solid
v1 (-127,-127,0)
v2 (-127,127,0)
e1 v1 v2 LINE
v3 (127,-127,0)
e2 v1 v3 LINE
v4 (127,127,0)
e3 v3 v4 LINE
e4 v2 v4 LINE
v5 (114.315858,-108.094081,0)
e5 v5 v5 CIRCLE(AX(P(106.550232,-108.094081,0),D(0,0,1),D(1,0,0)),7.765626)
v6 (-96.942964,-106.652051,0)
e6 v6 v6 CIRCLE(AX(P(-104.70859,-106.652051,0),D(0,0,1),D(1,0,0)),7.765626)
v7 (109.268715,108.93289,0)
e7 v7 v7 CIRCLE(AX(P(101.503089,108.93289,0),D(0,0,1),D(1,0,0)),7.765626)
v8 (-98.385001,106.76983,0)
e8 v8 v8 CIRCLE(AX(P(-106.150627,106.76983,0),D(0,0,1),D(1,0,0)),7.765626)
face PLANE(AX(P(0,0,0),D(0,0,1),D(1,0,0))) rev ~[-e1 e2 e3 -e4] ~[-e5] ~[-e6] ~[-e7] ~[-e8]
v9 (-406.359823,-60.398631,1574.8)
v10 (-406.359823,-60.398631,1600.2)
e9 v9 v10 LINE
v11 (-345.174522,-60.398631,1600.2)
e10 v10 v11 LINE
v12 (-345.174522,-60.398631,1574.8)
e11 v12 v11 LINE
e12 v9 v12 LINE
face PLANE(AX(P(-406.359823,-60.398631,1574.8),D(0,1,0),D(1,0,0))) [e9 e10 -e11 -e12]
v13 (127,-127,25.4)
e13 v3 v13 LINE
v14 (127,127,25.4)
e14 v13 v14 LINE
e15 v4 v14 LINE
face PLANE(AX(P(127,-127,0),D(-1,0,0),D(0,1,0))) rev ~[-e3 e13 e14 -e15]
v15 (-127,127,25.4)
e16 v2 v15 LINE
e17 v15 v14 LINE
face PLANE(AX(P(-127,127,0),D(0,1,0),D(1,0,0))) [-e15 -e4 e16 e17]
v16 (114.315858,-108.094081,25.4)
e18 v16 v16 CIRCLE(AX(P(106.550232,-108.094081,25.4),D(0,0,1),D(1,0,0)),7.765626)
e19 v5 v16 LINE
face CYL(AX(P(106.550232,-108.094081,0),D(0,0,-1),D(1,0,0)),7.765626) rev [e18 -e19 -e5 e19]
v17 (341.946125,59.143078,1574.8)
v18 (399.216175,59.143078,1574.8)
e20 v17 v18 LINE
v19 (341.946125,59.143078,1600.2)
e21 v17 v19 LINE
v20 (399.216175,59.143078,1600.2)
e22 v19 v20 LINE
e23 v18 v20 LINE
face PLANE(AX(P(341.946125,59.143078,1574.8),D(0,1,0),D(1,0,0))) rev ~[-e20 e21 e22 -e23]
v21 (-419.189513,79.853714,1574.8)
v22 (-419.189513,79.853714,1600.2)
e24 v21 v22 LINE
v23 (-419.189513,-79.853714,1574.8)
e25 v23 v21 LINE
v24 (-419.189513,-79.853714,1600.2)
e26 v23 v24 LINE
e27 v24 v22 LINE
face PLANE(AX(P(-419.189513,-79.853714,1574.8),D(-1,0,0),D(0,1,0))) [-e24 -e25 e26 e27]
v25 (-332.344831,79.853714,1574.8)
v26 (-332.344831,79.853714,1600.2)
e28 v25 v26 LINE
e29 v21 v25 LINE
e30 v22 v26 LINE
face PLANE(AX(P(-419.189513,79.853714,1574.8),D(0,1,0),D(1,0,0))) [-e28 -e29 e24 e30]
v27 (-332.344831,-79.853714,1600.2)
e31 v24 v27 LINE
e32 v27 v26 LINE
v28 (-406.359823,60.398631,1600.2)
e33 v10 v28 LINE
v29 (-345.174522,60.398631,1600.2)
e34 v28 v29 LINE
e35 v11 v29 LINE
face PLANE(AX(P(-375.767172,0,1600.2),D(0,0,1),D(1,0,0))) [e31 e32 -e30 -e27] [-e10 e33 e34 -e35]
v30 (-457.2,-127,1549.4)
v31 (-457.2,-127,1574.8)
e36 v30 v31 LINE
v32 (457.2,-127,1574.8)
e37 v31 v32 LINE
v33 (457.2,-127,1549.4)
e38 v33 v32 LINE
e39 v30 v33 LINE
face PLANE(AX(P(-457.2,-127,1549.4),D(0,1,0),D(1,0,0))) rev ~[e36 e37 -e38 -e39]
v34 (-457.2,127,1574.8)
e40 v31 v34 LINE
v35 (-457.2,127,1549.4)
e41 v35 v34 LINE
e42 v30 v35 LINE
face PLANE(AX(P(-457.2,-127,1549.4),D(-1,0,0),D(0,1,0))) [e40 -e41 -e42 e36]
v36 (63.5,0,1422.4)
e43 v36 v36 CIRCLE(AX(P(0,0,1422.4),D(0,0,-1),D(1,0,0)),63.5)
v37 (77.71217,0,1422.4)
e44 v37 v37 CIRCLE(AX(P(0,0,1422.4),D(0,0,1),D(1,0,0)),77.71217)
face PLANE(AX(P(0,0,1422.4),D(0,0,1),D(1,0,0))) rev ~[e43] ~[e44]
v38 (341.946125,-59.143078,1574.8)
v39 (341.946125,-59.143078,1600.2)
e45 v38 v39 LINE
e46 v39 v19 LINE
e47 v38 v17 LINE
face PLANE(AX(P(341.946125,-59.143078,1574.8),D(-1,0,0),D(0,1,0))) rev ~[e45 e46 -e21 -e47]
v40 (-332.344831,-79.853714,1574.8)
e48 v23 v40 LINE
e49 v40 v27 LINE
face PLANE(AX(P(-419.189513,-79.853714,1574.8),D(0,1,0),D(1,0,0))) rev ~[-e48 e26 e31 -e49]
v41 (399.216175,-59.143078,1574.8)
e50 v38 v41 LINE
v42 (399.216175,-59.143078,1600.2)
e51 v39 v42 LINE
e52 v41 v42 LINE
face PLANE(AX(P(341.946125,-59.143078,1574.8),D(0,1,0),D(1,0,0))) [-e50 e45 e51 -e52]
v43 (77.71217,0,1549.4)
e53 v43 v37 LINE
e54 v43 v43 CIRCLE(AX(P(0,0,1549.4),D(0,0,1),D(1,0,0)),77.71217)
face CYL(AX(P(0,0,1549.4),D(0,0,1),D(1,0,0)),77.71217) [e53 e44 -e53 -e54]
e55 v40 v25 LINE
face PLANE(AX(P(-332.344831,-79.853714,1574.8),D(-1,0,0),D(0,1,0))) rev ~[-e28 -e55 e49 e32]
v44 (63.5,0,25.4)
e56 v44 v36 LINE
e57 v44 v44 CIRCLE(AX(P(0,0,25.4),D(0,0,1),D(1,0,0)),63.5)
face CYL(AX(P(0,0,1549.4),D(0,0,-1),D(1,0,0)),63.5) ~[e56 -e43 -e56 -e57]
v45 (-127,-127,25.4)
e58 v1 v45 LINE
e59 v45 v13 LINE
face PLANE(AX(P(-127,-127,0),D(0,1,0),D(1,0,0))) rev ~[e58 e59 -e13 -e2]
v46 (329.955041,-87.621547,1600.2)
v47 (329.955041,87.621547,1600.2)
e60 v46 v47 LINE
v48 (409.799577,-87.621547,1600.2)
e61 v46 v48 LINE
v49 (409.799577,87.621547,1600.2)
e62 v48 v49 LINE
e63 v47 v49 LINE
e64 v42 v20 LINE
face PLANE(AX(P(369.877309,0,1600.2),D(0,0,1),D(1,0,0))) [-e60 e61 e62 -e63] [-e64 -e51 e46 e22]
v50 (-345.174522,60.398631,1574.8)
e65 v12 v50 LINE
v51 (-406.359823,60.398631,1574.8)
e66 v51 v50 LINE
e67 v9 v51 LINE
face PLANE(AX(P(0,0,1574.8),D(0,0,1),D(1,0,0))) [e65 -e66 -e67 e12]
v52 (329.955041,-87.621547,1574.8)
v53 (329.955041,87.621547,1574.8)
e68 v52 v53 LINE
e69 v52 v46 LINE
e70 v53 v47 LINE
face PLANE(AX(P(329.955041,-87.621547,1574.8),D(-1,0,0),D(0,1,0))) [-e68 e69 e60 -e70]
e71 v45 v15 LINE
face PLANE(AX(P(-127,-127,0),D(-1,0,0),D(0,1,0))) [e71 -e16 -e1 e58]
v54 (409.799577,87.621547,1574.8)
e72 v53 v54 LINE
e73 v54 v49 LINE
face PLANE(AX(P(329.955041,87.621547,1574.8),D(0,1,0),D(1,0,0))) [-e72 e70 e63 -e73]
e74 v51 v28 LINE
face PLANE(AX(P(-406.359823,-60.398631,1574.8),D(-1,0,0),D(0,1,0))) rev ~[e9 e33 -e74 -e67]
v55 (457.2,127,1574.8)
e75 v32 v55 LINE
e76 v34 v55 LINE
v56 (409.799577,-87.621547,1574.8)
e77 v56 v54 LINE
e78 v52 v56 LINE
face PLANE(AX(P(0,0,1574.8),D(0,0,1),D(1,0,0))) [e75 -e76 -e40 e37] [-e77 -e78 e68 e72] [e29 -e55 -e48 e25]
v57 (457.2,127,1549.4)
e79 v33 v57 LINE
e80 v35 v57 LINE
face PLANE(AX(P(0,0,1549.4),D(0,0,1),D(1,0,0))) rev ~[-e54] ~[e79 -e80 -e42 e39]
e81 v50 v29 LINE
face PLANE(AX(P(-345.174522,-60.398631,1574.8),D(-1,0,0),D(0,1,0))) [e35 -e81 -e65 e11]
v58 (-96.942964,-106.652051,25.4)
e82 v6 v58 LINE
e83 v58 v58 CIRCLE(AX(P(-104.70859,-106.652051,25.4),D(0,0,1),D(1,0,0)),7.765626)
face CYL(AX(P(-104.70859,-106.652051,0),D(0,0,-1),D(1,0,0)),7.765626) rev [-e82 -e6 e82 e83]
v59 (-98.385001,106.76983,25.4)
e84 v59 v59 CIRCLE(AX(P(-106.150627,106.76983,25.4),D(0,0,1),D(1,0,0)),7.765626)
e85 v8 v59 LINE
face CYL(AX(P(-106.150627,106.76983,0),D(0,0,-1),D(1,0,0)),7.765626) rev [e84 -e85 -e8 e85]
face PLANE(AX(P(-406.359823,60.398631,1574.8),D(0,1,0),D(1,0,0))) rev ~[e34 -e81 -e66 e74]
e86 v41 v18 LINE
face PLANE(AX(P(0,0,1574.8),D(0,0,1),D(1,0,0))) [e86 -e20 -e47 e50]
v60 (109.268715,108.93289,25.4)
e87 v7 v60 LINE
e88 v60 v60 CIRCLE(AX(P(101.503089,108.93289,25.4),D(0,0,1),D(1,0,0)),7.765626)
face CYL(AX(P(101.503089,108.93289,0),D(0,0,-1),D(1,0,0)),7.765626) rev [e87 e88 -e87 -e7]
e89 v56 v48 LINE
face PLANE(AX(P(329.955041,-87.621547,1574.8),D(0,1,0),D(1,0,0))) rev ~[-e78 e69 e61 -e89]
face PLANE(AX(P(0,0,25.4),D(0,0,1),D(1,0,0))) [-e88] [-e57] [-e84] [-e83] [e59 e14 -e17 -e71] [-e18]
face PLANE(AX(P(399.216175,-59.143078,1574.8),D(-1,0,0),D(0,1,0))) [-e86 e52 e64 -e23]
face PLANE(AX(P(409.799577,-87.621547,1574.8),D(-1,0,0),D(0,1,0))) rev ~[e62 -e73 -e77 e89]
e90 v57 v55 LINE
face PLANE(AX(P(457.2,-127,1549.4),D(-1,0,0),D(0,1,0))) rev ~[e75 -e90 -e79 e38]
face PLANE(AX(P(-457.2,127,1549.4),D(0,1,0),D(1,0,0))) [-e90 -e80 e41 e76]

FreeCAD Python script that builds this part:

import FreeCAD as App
import Part
import Sketcher
Q = App.Units.Quantity


def add_polygon(sketch, points):
    """Adds a closed chain of lines whose ends are joined by coincident constraints."""
    first, n = sketch.GeometryCount, len(points)
    for a, b in zip(points, points[1:] + points[:1]):
        sketch.addGeometry(Part.LineSegment(App.Vector(*a, 0), App.Vector(*b, 0)), False)
    for i in range(n):
        sketch.addConstraint(Sketcher.Constraint("Coincident", first + i, 2, first + (i + 1) % n, 1))

doc = App.newDocument("Part")
body = doc.addObject("PartDesign::Body", "Body")

sketch1 = body.newObject("Sketcher::SketchObject", "Sketch")
sketch1.AttachmentSupport = (doc.getObject("XY_Plane"), [""])
sketch1.MapMode = "FlatFace"
add_polygon(sketch1, [(-127, 127), (-127, -127), (127, -127), (127, 127)])
sketch1.addGeometry(Part.Circle(App.Vector(-105, -107, 0), App.Vector(0, 0, 1), 8), False)
sketch1.addGeometry(Part.Circle(App.Vector(107, -108, 0), App.Vector(0, 0, 1), 8), False)
sketch1.addGeometry(Part.Circle(App.Vector(-106, 107, 0), App.Vector(0, 0, 1), 8), False)
sketch1.addGeometry(Part.Circle(App.Vector(102, 109, 0), App.Vector(0, 0, 1), 8), False)
sketch1.addConstraint([
    Sketcher.Constraint("Vertical", 0),
    Sketcher.Constraint("Horizontal", 1),
    Sketcher.Constraint("Vertical", 2),
    Sketcher.Constraint("Horizontal", 3),
    Sketcher.Constraint("Equal", 4, 5),
    Sketcher.Constraint("Equal", 5, 6),
    Sketcher.Constraint("Equal", 6, 7),
    Sketcher.Constraint("Symmetric", 0, 2, 2, 2, -1, 1),
    Sketcher.Constraint("Equal", 3, 0),
    Sketcher.Constraint("DistanceX", 1, 1, 1, 2, Q("10 in")),
    Sketcher.Constraint("Diameter", 4, Q("15.531252 mm")),
    Sketcher.Constraint("DistanceX", 4, 3, -1, 1, Q("104.70859 mm")),
    Sketcher.Constraint("DistanceY", 4, 3, -1, 1, Q("106.652051 mm")),
    Sketcher.Constraint("DistanceX", -1, 1, 5, 3, Q("106.550232 mm")),
    Sketcher.Constraint("DistanceY", 5, 3, -1, 1, Q("108.094081 mm")),
    Sketcher.Constraint("DistanceY", -1, 1, 6, 3, Q("106.76983 mm")),
    Sketcher.Constraint("DistanceX", -1, 1, 7, 3, Q("101.503089 mm")),
    Sketcher.Constraint("DistanceY", -1, 1, 7, 3, Q("108.93289 mm")),
    Sketcher.Constraint("DistanceX", 6, 3, 5, 3, Q("212.700859 mm")),
])
pad1 = body.newObject("PartDesign::Pad", "Pad")
pad1.Profile = sketch1
pad1.Length = Q("1 in")

sketch2 = body.newObject("Sketcher::SketchObject", "Sketch001")
sketch2.AttachmentSupport = (doc.getObject("XY_Plane"), [""])
sketch2.MapMode = "FlatFace"
sketch2.AttachmentOffset = App.Placement(App.Vector(0, 0, 1 * 25.4), App.Rotation())
sketch2.addGeometry(Part.Circle(App.Vector(0, 0, 0), App.Vector(0, 0, 1), 64), False)
sketch2.addConstraint([
    Sketcher.Constraint("Coincident", 0, 3, -1, 1),
    Sketcher.Constraint("Diameter", 0, Q("5 in")),
])
pad2 = body.newObject("PartDesign::Pad", "Pad001")
pad2.Profile = sketch2
pad2.Length = Q("60 in")

sketch3 = body.newObject("Sketcher::SketchObject", "Sketch002")
sketch3.AttachmentSupport = (doc.getObject("XY_Plane"), [""])
sketch3.MapMode = "FlatFace"
sketch3.AttachmentOffset = App.Placement(App.Vector(0, 0, 61 * 25.4), App.Rotation())
sketch3.addGeometry(Part.Circle(App.Vector(0, 0, 0), App.Vector(0, 0, 1), 64), False)
sketch3.addConstraint([
    Sketcher.Constraint("Coincident", 0, 3, -1, 1),
    Sketcher.Constraint("Diameter", 0, Q("5 in")),
])
pad3 = body.newObject("PartDesign::Pad", "Pad002")
pad3.Profile = sketch3
pad3.Length = Q("1 in")

sketch4 = body.newObject("Sketcher::SketchObject", "Sketch003")
sketch4.AttachmentSupport = (doc.getObject("XY_Plane"), [""])
sketch4.MapMode = "FlatFace"
sketch4.AttachmentOffset = App.Placement(App.Vector(0, 0, 61 * 25.4), App.Rotation())
add_polygon(sketch4, [(-457, 127), (-457, -127), (457, -127), (457, 127)])
sketch4.addGeometry(Part.Circle(App.Vector(0, 0, 0), App.Vector(0, 0, 1), 64), False)
sketch4.addConstraint([
    Sketcher.Constraint("Vertical", 0),
    Sketcher.Constraint("Horizontal", 1),
    Sketcher.Constraint("Vertical", 2),
    Sketcher.Constraint("Horizontal", 3),
    Sketcher.Constraint("Coincident", 4, 3, -1, 1),
    Sketcher.Constraint("Symmetric", 0, 2, 2, 2, -1, 1),
    Sketcher.Constraint("Diameter", 4, Q("5 in")),
    Sketcher.Constraint("DistanceX", 1, 1, 1, 2, Q("36 in")),
    Sketcher.Constraint("DistanceY", 0, 2, 0, 1, Q("10 in")),
])
pad4 = body.newObject("PartDesign::Pad", "Pad003")
pad4.Profile = sketch4
pad4.Length = Q("1 in")

sketch5 = body.newObject("Sketcher::SketchObject", "Sketch004")
sketch5.AttachmentSupport = (doc.getObject("XY_Plane"), [""])
sketch5.MapMode = "FlatFace"
sketch5.AttachmentOffset = App.Placement(App.Vector(0, 0, 62 * 25.4), App.Rotation())
add_polygon(sketch5, [(330, 88), (330, -88), (410, -88), (410, 88)])
add_polygon(sketch5, [(399, -59), (342, -59), (342, 59), (399, 59)])
sketch5.addConstraint([
    Sketcher.Constraint("Vertical", 0),
    Sketcher.Constraint("Horizontal", 1),
    Sketcher.Constraint("Vertical", 2),
    Sketcher.Constraint("Horizontal", 3),
    Sketcher.Constraint("Horizontal", 4),
    Sketcher.Constraint("Vertical", 5),
    Sketcher.Constraint("Horizontal", 6),
    Sketcher.Constraint("Vertical", 7),
    Sketcher.Constraint("DistanceX", 4, 2, 4, 1, Q("57.27005 mm")),
    Sketcher.Constraint("DistanceX", 6, 2, 2, 2, Q("10.583401 mm")),
    Sketcher.Constraint("DistanceX", 1, 1, 1, 2, Q("79.844535 mm")),
    Sketcher.Constraint("DistanceY", 0, 2, 0, 1, Q("175.243094 mm")),
    Sketcher.Constraint("DistanceY", 5, 1, 5, 2, Q("118.286156 mm")),
    Sketcher.Constraint("DistanceX", -1, 1, 0, 2, Q("329.955041 mm")),
    Sketcher.Constraint("DistanceY", 4, 2, -1, 1, Q("59.143078 mm")),
    Sketcher.Constraint("DistanceY", 0, 2, 4, 2, Q("28.478469 mm")),
])
pad5 = body.newObject("PartDesign::Pad", "Pad004")
pad5.Profile = sketch5
pad5.Length = Q("1 in")

sketch6 = body.newObject("Sketcher::SketchObject", "Sketch005")
sketch6.AttachmentSupport = (doc.getObject("XY_Plane"), [""])
sketch6.MapMode = "FlatFace"
sketch6.AttachmentOffset = App.Placement(App.Vector(0, 0, 62 * 25.4), App.Rotation())
add_polygon(sketch6, [(-419, 80), (-419, -80), (-332, -80), (-332, 80)])
add_polygon(sketch6, [(-345, -60), (-406, -60), (-406, 60), (-345, 60)])
sketch6.addConstraint([
    Sketcher.Constraint("Vertical", 0),
    Sketcher.Constraint("Horizontal", 1),
    Sketcher.Constraint("Vertical", 2),
    Sketcher.Constraint("Horizontal", 3),
    Sketcher.Constraint("Horizontal", 4),
    Sketcher.Constraint("Vertical", 5),
    Sketcher.Constraint("Horizontal", 6),
    Sketcher.Constraint("Vertical", 7),
    Sketcher.Constraint("DistanceX", 4, 2, 4, 1, Q("61.185301 mm")),
    Sketcher.Constraint("DistanceY", 0, 2, 0, 1, Q("159.707428 mm")),
    Sketcher.Constraint("DistanceX", 1, 1, 1, 2, Q("86.844683 mm")),
    Sketcher.Constraint("DistanceY", 5, 1, 5, 2, Q("120.797262 mm")),
    Sketcher.Constraint("DistanceX", 1, 2, -1, 1, Q("332.344831 mm")),
    Sketcher.Constraint("DistanceY", 4, 2, -1, 1, Q("60.398631 mm")),
    Sketcher.Constraint("DistanceX", 6, 2, -1, 1, Q("345.174522 mm")),
    Sketcher.Constraint("DistanceY", 0, 2, -1, 1, Q("79.853714 mm")),
])
pad6 = body.newObject("PartDesign::Pad", "Pad005")
pad6.Profile = sketch6
pad6.Length = Q("1 in")

sketch7 = body.newObject("Sketcher::SketchObject", "Sketch006")
sketch7.AttachmentSupport = (doc.getObject("XY_Plane"), [""])
sketch7.MapMode = "FlatFace"
sketch7.AttachmentOffset = App.Placement(App.Vector(0, 0, 61 * 25.4), App.Rotation())
sketch7.addGeometry(Part.Circle(App.Vector(0, 0, 0), App.Vector(0, 0, 1), 78), False)
sketch7.addConstraint([
    Sketcher.Constraint("Coincident", 0, 3, -1, 1),
    Sketcher.Constraint("Diameter", 0, Q("155.42434 mm")),
])
pad7 = body.newObject("PartDesign::Pad", "Pad006")
pad7.Profile = sketch7
pad7.Length = Q("5 in")
pad7.Reversed = True

doc.recompute()
